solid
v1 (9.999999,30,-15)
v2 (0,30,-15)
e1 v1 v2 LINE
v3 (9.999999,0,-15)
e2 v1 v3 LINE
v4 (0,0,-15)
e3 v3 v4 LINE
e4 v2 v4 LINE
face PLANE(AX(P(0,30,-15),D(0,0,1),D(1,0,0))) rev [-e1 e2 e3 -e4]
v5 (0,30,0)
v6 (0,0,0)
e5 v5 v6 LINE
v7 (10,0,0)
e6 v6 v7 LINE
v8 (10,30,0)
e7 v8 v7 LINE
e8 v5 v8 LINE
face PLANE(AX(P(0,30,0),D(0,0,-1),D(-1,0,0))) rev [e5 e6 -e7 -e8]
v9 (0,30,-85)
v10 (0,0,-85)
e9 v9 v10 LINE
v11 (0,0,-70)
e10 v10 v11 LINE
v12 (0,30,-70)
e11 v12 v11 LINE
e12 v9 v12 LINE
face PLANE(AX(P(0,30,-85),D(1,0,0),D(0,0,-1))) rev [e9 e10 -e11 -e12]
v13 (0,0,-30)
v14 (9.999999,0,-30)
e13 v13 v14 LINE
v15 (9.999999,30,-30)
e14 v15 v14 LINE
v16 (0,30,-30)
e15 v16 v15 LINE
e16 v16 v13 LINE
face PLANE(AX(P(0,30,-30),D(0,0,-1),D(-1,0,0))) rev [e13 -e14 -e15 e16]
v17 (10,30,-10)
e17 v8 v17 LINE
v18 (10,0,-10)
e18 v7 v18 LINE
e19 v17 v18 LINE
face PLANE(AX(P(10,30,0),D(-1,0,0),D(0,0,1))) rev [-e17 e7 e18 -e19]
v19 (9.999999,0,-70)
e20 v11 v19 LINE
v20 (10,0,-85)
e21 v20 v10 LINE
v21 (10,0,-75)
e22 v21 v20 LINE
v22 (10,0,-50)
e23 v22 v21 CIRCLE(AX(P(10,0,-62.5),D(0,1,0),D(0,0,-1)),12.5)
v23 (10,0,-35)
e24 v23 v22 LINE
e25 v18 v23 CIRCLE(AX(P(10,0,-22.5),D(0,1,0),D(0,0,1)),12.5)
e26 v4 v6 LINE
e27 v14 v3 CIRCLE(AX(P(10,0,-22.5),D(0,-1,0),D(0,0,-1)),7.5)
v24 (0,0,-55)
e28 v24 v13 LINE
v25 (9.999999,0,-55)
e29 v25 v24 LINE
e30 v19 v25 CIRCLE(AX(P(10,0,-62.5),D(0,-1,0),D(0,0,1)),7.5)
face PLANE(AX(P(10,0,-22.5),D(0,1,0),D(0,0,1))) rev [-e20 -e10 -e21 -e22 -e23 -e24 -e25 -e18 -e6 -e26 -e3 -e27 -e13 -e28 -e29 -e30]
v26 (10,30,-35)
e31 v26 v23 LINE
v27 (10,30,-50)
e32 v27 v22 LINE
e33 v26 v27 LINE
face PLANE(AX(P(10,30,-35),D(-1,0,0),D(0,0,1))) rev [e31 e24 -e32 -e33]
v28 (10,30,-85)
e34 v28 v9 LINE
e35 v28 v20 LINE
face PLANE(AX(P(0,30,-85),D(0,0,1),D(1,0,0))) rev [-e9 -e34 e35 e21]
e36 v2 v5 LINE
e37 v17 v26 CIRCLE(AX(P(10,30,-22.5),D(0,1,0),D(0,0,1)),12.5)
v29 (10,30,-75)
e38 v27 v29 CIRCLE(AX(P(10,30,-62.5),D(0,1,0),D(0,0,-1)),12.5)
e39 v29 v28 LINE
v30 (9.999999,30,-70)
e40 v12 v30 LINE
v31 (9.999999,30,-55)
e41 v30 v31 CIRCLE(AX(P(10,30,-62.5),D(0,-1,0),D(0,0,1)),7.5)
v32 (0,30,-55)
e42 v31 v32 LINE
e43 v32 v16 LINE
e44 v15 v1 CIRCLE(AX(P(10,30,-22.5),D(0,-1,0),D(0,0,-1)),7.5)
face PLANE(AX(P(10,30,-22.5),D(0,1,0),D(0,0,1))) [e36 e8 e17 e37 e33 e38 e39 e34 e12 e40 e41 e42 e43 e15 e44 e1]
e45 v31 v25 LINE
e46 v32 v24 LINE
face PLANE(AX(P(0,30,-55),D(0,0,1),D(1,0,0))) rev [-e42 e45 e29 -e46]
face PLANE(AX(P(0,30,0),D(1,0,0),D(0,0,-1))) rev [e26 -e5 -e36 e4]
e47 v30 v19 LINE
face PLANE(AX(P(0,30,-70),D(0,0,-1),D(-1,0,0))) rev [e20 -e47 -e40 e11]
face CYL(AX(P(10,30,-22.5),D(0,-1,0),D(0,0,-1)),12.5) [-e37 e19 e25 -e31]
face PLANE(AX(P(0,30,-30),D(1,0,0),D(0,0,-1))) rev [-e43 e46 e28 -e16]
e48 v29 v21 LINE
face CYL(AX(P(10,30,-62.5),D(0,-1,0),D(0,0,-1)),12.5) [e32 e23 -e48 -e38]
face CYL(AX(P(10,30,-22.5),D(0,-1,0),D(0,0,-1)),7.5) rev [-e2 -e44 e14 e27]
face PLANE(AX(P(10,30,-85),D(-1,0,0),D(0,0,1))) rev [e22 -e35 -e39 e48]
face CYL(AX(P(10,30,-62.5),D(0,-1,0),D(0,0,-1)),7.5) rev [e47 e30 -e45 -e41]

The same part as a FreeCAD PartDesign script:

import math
import FreeCAD as App
import Part
import Sketcher

V = App.Vector
Q = App.Units.Quantity

doc = App.newDocument("Part")
body = doc.addObject("PartDesign::Body", "Body")

sketch1 = body.newObject("Sketcher::SketchObject", "Sketch")
sketch1.AttachmentSupport = (doc.getObject("XZ_Plane"), [""])
sketch1.MapMode = "FlatFace"
sketch1.addGeometry([
    Part.LineSegment(V(0, -15, 0), V(0, 0, 0)),
    Part.LineSegment(V(0, 0, 0), V(10, 0, 0)),
    Part.LineSegment(V(10, 0, 0), V(10, -10, 0)),
    Part.ArcOfCircle(Part.Circle(V(10, -22, 0), V(0, 0, 1), 12), math.radians(-90), math.radians(90)),
    Part.LineSegment(V(10, -35, 0), V(10, -50, 0)),
    Part.ArcOfCircle(Part.Circle(V(10, -62, 0), V(0, 0, 1), 12), math.radians(-90), math.radians(90)),
    Part.LineSegment(V(10, -75, 0), V(10, -85, 0)),
    Part.LineSegment(V(10, -85, 0), V(0, -85, 0)),
    Part.LineSegment(V(0, -85, 0), V(0, -70, 0)),
    Part.LineSegment(V(0, -70, 0), V(10, -70, 0)),
    Part.ArcOfCircle(Part.Circle(V(10, -62, 0), V(0, 0, 1), 8), math.radians(-90), math.radians(90)),
    Part.LineSegment(V(10, -55, 0), V(0, -55, 0)),
    Part.LineSegment(V(0, -55, 0), V(0, -30, 0)),
    Part.LineSegment(V(0, -30, 0), V(10, -30, 0)),
    Part.ArcOfCircle(Part.Circle(V(10, -22, 0), V(0, 0, 1), 8), math.radians(-90), math.radians(90)),
    Part.LineSegment(V(10, -15, 0), V(0, -15, 0)),
], False)
sketch1.addConstraint([
    Sketcher.Constraint("Coincident", 0, 2, 1, 1),
    Sketcher.Constraint("Coincident", 1, 2, 2, 1),
    Sketcher.Constraint("Coincident", 2, 2, 3, 2),
    Sketcher.Constraint("Coincident", 3, 1, 4, 1),
    Sketcher.Constraint("Coincident", 4, 2, 5, 2),
    Sketcher.Constraint("Coincident", 5, 1, 6, 1),
    Sketcher.Constraint("Coincident", 6, 2, 7, 1),
    Sketcher.Constraint("Coincident", 7, 2, 8, 1),
    Sketcher.Constraint("Coincident", 8, 2, 9, 1),
    Sketcher.Constraint("Tangent", 9, 2, 10, 1),
    Sketcher.Constraint("Tangent", 10, 2, 11, 1),
    Sketcher.Constraint("Coincident", 11, 2, 12, 1),
    Sketcher.Constraint("Coincident", 12, 2, 13, 1),
    Sketcher.Constraint("Tangent", 13, 2, 14, 1),
    Sketcher.Constraint("Tangent", 14, 2, 15, 1),
    Sketcher.Constraint("Coincident", 15, 2, 0, 1),
    Sketcher.Constraint("Vertical", 0),
    Sketcher.Constraint("Horizontal", 1),
    Sketcher.Constraint("Vertical", 2),
    Sketcher.Constraint("Vertical", 4),
    Sketcher.Constraint("Vertical", 6),
    Sketcher.Constraint("Horizontal", 7),
    Sketcher.Constraint("Vertical", 8),
    Sketcher.Constraint("Horizontal", 9),
    Sketcher.Constraint("Horizontal", 11),
    Sketcher.Constraint("Vertical", 12),
    Sketcher.Constraint("Horizontal", 13),
    Sketcher.Constraint("Horizontal", 15),
    Sketcher.Constraint("Coincident", 0, 2, -1, 1),
    Sketcher.Constraint("Coincident", 10, 3, 5, 3),
    Sketcher.Constraint("Coincident", 14, 3, 3, 3),
    Sketcher.Constraint("Equal", 3, 5),
    Sketcher.Constraint("Equal", 10, 14),
    Sketcher.Constraint("PointOnObject", 7, 2, -2),
    Sketcher.Constraint("PointOnObject", 11, 2, -2),
    Sketcher.Constraint("Vertical", 3, 3, 5, 3),
    Sketcher.Constraint("Vertical", 14, 3, 1, 2),
    Sketcher.Constraint("Vertical", 2, 2, 3, 1),
    Sketcher.Constraint("Vertical", 4, 2, 5, 1),
    Sketcher.Constraint("Equal", 15, 2),
    Sketcher.Constraint("Equal", 0, 4),
    Sketcher.Constraint("Equal", 2, 6),
    Sketcher.Constraint("Radius", 3, Q("12.5 mm")),
    Sketcher.Constraint("Radius", 10, Q("7.5 mm")),
    Sketcher.Constraint("DistanceX", 1, 1, 1, 2, Q("10 mm")),
])
pad1 = body.newObject("PartDesign::Pad", "Pad")
pad1.Profile = sketch1
pad1.Length = 30
pad1.Reversed = True

doc.recompute()
